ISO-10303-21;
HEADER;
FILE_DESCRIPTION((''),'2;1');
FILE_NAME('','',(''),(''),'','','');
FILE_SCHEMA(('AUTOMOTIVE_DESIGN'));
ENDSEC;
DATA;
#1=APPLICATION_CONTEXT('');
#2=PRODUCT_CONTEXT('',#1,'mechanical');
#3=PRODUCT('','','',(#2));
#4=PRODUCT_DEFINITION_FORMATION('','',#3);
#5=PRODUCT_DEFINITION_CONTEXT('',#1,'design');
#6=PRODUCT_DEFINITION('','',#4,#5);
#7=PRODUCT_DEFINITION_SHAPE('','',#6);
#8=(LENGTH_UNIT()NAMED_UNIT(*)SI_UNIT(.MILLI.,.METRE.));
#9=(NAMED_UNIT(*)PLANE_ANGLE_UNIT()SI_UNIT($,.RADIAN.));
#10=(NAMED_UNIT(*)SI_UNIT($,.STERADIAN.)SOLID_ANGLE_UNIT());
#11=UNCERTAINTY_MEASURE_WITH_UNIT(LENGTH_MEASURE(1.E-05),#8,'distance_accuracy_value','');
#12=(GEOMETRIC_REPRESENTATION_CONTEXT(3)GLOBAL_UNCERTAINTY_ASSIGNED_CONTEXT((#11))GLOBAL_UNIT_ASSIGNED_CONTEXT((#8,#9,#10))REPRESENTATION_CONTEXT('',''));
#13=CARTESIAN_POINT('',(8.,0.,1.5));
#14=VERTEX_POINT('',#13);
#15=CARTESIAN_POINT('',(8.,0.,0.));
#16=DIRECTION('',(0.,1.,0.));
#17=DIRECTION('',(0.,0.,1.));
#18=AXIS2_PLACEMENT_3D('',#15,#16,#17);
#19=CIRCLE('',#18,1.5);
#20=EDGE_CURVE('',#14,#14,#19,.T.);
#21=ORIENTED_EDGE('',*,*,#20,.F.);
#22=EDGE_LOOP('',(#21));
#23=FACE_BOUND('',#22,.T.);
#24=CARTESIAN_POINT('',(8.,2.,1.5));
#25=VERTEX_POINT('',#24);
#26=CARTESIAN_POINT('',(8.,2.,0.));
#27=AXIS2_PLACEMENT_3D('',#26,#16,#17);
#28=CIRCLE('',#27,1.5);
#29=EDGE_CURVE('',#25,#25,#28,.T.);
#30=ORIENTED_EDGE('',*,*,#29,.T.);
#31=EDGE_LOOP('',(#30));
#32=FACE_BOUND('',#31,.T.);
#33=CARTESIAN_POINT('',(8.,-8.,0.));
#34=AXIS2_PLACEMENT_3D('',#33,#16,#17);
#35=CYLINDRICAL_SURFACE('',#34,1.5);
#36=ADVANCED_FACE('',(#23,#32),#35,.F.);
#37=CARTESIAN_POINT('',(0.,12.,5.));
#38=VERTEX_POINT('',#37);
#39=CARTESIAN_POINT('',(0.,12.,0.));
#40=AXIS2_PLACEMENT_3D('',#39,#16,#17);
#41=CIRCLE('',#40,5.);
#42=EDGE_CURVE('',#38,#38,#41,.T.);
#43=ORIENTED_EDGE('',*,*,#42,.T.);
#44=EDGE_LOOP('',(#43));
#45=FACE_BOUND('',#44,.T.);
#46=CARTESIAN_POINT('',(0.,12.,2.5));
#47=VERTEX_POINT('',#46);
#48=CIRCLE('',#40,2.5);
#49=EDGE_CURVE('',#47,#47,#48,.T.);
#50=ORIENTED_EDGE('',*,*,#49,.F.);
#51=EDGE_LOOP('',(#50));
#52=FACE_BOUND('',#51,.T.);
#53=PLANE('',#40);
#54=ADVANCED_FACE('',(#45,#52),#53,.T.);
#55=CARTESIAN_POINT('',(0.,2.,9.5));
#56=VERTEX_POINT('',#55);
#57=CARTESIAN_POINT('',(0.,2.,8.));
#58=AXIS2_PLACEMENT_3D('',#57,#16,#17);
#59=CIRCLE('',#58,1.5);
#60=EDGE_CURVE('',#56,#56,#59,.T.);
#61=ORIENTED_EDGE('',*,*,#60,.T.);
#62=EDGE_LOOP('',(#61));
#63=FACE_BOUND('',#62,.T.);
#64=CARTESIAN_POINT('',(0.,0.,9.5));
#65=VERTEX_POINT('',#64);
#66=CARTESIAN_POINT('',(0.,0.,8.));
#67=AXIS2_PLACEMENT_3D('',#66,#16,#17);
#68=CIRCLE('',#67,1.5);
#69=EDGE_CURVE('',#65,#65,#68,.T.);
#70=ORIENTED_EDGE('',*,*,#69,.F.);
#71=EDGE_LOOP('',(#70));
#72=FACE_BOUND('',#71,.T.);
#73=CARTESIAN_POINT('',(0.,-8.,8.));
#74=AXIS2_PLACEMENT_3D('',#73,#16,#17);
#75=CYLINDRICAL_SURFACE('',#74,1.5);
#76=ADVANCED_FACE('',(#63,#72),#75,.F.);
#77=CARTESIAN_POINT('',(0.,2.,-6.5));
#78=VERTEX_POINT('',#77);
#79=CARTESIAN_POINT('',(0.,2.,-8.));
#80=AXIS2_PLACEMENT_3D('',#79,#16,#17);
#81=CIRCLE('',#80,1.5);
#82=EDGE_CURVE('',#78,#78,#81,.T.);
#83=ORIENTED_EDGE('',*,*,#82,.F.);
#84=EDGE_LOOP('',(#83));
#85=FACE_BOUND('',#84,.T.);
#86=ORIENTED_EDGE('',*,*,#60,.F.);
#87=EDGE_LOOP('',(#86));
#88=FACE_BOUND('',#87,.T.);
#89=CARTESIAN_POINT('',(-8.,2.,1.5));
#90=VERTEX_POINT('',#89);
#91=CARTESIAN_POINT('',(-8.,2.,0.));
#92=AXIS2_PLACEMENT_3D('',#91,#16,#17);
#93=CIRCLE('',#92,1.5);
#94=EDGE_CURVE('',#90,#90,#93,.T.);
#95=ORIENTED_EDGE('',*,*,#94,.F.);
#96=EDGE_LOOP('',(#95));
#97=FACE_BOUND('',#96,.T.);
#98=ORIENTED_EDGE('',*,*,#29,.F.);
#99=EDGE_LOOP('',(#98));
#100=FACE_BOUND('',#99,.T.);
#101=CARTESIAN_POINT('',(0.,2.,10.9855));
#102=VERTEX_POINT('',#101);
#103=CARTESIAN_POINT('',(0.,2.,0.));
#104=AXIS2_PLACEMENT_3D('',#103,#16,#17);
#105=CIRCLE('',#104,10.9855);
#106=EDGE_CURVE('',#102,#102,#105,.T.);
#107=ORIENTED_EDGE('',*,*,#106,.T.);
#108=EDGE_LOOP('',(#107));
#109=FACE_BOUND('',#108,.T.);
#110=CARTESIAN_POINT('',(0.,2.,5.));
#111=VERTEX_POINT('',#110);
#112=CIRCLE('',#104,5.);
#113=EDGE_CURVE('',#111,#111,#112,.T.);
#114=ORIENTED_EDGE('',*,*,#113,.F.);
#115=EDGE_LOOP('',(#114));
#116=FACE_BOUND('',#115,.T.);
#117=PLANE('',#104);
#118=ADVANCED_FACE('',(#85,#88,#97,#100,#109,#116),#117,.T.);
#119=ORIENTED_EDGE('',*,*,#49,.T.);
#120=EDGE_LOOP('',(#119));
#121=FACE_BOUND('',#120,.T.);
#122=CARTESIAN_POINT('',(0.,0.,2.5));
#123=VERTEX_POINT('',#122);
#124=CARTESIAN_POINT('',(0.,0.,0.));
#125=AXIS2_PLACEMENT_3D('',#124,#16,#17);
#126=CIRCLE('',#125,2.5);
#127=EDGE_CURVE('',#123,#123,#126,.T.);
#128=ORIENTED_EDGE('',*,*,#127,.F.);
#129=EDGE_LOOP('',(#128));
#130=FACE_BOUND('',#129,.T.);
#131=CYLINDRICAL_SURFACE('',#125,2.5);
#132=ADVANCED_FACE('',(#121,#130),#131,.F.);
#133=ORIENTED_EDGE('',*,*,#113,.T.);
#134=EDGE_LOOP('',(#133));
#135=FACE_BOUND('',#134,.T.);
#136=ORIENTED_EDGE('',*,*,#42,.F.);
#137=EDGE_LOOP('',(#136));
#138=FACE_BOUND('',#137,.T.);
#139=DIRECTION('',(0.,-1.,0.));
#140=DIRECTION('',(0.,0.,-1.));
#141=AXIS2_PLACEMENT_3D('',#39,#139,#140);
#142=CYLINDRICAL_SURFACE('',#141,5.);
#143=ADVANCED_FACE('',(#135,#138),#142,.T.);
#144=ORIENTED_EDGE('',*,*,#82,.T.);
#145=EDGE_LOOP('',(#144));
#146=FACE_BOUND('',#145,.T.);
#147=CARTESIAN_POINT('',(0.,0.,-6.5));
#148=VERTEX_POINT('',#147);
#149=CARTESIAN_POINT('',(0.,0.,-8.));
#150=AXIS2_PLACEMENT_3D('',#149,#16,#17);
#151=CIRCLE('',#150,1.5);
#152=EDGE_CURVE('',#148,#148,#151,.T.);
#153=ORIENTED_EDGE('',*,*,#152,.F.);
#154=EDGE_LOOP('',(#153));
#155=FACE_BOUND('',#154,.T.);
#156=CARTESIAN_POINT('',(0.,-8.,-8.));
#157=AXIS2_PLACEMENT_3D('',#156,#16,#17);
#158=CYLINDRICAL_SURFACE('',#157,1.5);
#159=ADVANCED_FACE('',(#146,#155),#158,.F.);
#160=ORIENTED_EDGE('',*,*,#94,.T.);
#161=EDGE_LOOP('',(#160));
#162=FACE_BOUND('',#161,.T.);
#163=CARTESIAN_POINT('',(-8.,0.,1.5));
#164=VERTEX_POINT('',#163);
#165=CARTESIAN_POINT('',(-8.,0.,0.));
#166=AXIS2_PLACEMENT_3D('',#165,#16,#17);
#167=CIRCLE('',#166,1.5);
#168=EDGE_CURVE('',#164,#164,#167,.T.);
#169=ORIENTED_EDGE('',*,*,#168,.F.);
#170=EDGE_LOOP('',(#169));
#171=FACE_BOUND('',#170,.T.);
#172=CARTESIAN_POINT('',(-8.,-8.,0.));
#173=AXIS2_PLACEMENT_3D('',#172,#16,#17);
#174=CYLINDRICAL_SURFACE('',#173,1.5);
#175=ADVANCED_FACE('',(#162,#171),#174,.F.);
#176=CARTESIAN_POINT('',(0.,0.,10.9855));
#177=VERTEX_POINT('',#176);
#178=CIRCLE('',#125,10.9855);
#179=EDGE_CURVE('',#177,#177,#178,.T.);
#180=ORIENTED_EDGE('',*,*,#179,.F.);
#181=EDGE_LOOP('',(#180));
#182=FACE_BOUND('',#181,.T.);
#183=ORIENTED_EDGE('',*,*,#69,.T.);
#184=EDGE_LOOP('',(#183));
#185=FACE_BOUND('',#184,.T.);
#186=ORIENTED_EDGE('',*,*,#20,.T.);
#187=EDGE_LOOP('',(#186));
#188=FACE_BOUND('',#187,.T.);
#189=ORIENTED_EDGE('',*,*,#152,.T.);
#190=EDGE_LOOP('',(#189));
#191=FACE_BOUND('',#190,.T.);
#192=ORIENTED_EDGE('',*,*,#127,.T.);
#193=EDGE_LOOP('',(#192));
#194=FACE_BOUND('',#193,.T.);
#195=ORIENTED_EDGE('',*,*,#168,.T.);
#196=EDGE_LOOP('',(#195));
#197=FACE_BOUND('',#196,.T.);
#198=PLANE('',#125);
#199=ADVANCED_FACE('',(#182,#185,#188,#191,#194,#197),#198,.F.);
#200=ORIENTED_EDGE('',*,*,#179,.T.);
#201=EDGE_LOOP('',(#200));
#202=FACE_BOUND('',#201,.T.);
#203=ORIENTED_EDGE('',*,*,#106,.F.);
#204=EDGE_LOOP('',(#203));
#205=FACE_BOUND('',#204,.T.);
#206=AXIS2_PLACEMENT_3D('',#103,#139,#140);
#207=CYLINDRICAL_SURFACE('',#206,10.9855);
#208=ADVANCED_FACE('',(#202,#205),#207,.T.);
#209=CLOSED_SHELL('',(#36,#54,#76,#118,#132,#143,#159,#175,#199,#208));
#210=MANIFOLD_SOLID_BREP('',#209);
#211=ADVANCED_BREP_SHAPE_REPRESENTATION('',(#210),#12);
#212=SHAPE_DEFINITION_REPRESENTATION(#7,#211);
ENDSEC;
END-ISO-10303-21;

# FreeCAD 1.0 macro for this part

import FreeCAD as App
import Part
import Sketcher

V = App.Vector

doc = App.newDocument("Part")
params = doc.addObject("Spreadsheet::Sheet", "Params")
for row, (alias, value) in enumerate([
    ("pad1_length", "2 mm"),
    ("sketch2_diameter", "10 mm"),
    ("pad2_length", "10 mm"),
    ("sketch3_diameter", "5 mm"),
    ("sketch4_diameter", "3 mm"),
    ("pocket2_length", "10 mm"),
], start=1):
    params.set(f"A{row}", alias)
    params.set(f"B{row}", "=" + value)
    params.setAlias(f"B{row}", alias)

body = doc.addObject("PartDesign::Body", "Body")

sketch1 = body.newObject("Sketcher::SketchObject", "Sketch")
sketch1.AttachmentSupport = (doc.getObject("XZ_Plane"), [""])
sketch1.MapMode = "FlatFace"
sketch1.addGeometry(Part.Circle(V(0, 0, 0), V(0, 0, 1), 10.9855), False)
sketch1.addConstraint([
    Sketcher.Constraint("Coincident", 0, 3, -1, 1),
    Sketcher.Constraint("Diameter", 0, 21.971),
])
pad1 = body.newObject("PartDesign::Pad", "Pad")
pad1.Profile = sketch1
pad1.setExpression("Length", "Params.pad1_length")
pad1.Reversed = True

sketch2 = body.newObject("Sketcher::SketchObject", "Sketch001")
sketch2.AttachmentSupport = (doc.getObject("XZ_Plane"), [""])
sketch2.MapMode = "FlatFace"
sketch2.AttachmentOffset = App.Placement(V(0, 0, -2), App.Rotation())
sketch2.addGeometry(Part.Circle(V(0, 0, 0), V(0, 0, 1), 5), False)
sketch2.addConstraint([
    Sketcher.Constraint("Coincident", 0, 3, -1, 1),
    Sketcher.Constraint("Diameter", 0, 10.0),
])
sketch2.setExpression("Constraints[1]", "Params.sketch2_diameter")
pad2 = body.newObject("PartDesign::Pad", "Pad001")
pad2.Profile = sketch2
pad2.setExpression("Length", "Params.pad2_length")
pad2.Reversed = True

sketch3 = body.newObject("Sketcher::SketchObject", "Sketch002")
sketch3.AttachmentSupport = (doc.getObject("XZ_Plane"), [""])
sketch3.MapMode = "FlatFace"
sketch3.AttachmentOffset = App.Placement(V(0, 0, -2), App.Rotation())
sketch3.addGeometry(Part.Circle(V(0, 0, 0), V(0, 0, 1), 2.5), False)
sketch3.addConstraint([
    Sketcher.Constraint("Coincident", 0, 3, -1, 1),
    Sketcher.Constraint("Diameter", 0, 5.0),
])
sketch3.setExpression("Constraints[1]", "Params.sketch3_diameter")
pocket1 = body.newObject("PartDesign::Pocket", "Pocket")
pocket1.Profile = sketch3
pocket1.Type = "ThroughAll"
pocket1.Midplane = True

sketch4 = body.newObject("Sketcher::SketchObject", "Sketch003")
sketch4.AttachmentSupport = (doc.getObject("XZ_Plane"), [""])
sketch4.MapMode = "FlatFace"
sketch4.AttachmentOffset = App.Placement(V(0, 0, -2), App.Rotation())
sketch4.addGeometry([
    Part.Circle(V(8, 0, 0), V(0, 0, 1), 1.5),
    Part.Circle(V(0, 8, 0), V(0, 0, 1), 1.5),
    Part.Circle(V(-8, 0, 0), V(0, 0, 1), 1.5),
    Part.Circle(V(0, -8, 0), V(0, 0, 1), 1.5),
], False)
sketch4.addConstraint([
    Sketcher.Constraint("Equal", 0, 1),
    Sketcher.Constraint("Equal", 1, 2),
    Sketcher.Constraint("Equal", 2, 3),
    Sketcher.Constraint("Symmetric", 0, 3, 2, 3, -1, 1),
    Sketcher.Constraint("Symmetric", 1, 3, 3, 3, -1, 1),
    Sketcher.Constraint("PointOnObject", 0, 3, -1),
    Sketcher.Constraint("PointOnObject", 1, 3, -2),
    Sketcher.Constraint("Diameter", 0, 3.0),
    Sketcher.Constraint("DistanceX", -1, 1, 0, 3, 8.0),
    Sketcher.Constraint("DistanceY", -1, 1, 1, 3, 8.0),
])
sketch4.setExpression("Constraints[7]", "Params.sketch4_diameter")
pocket2 = body.newObject("PartDesign::Pocket", "Pocket001")
pocket2.Profile = sketch4
pocket2.setExpression("Length", "Params.pocket2_length")
pocket2.Reversed = True

doc.recompute()
